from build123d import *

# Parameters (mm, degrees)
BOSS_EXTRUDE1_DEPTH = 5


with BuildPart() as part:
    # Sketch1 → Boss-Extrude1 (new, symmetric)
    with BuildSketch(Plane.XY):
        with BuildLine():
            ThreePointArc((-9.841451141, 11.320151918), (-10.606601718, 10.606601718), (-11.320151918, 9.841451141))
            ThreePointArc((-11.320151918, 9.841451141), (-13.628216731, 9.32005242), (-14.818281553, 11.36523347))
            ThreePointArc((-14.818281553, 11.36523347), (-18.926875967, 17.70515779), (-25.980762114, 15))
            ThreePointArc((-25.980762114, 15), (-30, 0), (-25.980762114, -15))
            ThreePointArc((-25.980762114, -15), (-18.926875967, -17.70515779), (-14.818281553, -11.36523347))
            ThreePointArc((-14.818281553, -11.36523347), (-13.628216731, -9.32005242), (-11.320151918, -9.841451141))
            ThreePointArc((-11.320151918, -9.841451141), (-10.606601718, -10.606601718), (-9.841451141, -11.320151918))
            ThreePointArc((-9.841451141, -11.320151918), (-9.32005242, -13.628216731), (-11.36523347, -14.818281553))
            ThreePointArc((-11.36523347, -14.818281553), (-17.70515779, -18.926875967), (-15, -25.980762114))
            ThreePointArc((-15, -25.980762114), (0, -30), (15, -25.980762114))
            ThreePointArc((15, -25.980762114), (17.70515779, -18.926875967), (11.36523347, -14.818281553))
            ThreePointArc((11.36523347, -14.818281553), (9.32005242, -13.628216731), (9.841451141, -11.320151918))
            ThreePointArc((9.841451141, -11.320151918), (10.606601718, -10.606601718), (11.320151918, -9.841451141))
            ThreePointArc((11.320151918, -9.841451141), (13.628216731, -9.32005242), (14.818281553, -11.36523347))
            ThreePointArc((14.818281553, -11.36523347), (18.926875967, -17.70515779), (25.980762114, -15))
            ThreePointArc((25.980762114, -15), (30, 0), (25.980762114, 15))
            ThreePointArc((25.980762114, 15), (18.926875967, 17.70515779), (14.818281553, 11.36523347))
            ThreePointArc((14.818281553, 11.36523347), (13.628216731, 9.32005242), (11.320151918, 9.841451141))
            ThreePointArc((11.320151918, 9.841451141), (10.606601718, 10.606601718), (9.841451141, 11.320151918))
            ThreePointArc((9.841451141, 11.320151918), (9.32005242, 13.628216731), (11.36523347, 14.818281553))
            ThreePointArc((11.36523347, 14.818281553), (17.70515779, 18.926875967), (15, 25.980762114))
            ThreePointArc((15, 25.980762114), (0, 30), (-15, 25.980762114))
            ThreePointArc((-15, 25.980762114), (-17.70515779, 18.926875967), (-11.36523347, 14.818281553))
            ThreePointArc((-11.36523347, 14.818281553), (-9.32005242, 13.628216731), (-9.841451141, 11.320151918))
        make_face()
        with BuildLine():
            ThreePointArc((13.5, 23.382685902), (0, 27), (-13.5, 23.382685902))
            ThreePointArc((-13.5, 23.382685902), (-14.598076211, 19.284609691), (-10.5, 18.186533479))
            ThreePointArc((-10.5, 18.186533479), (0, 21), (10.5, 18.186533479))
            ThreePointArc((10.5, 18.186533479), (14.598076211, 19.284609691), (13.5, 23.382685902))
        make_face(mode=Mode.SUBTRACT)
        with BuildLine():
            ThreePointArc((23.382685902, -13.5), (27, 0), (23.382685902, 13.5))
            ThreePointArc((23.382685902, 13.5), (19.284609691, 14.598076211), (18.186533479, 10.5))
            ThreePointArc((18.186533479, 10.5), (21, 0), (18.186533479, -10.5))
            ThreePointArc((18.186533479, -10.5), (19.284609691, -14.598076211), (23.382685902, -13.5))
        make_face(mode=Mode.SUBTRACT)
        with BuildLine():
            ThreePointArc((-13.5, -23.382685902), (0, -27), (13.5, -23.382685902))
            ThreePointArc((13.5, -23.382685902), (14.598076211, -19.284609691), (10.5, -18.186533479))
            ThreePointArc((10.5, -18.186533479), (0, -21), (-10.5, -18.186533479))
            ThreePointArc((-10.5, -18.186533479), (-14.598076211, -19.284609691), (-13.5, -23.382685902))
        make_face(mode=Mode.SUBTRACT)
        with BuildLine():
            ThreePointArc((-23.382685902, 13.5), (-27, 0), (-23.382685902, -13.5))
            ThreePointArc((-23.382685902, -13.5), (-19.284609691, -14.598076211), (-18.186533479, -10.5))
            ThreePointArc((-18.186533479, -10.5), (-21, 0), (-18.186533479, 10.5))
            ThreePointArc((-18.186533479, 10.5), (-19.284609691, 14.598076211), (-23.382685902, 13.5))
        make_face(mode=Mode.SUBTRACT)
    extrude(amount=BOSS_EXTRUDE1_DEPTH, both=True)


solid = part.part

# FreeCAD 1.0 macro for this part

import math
import FreeCAD as App
import Part
import Sketcher
Q = App.Units.Quantity

doc = App.newDocument("Part")
body = doc.addObject("PartDesign::Body", "Body")

sketch1 = doc.addObject("Sketcher::SketchObject", "Sketch")
body.addObject(sketch1)
sketch1.AttachmentSupport = (doc.XY_Plane, [""])
sketch1.MapMode = "FlatFace"
sketch1.addGeometry([
    Part.ArcOfCircle(Part.Circle(App.Vector(0, 0, 0), App.Vector(0, 0, 1), 15), math.radians(131), math.radians(139)),
    Part.ArcOfCircle(Part.Circle(App.Vector(-12.8, 11.2, 0), App.Vector(0, 0, 1), 2), math.radians(174), math.radians(319)),
    Part.ArcOfCircle(Part.Circle(App.Vector(-20.8, 12, 0), App.Vector(0, 0, 1), 6), math.radians(-6), math.radians(150)),
    Part.ArcOfCircle(Part.Circle(App.Vector(0, 0, 0), App.Vector(0, 0, 1), 30), math.radians(150), math.radians(210)),
    Part.ArcOfCircle(Part.Circle(App.Vector(-20.8, -12, 0), App.Vector(0, 0, 1), 6), math.radians(-150), math.radians(6)),
    Part.ArcOfCircle(Part.Circle(App.Vector(-12.8, -11.2, 0), App.Vector(0, 0, 1), 2), math.radians(41), math.radians(186)),
    Part.ArcOfCircle(Part.Circle(App.Vector(0, 0, 0), App.Vector(0, 0, 1), 15), math.radians(-139), math.radians(-131)),
    Part.ArcOfCircle(Part.Circle(App.Vector(-11.2, -12.8, 0), App.Vector(0, 0, 1), 2), math.radians(-96), math.radians(49)),
    Part.ArcOfCircle(Part.Circle(App.Vector(-12, -20.8, 0), App.Vector(0, 0, 1), 6), math.radians(84), math.radians(240)),
    Part.ArcOfCircle(Part.Circle(App.Vector(0, 0, 0), App.Vector(0, 0, 1), 30), math.radians(-120), math.radians(-60)),
    Part.ArcOfCircle(Part.Circle(App.Vector(12, -20.8, 0), App.Vector(0, 0, 1), 6), math.radians(-60), math.radians(96)),
    Part.ArcOfCircle(Part.Circle(App.Vector(11.2, -12.8, 0), App.Vector(0, 0, 1), 2), math.radians(131), math.radians(276)),
    Part.ArcOfCircle(Part.Circle(App.Vector(0, 0, 0), App.Vector(0, 0, 1), 15), math.radians(-49), math.radians(-41)),
    Part.ArcOfCircle(Part.Circle(App.Vector(12.8, -11.2, 0), App.Vector(0, 0, 1), 2), math.radians(-6), math.radians(139)),
    Part.ArcOfCircle(Part.Circle(App.Vector(20.8, -12, 0), App.Vector(0, 0, 1), 6), math.radians(174), math.radians(330)),
    Part.ArcOfCircle(Part.Circle(App.Vector(0, 0, 0), App.Vector(0, 0, 1), 30), math.radians(-30), math.radians(30)),
    Part.ArcOfCircle(Part.Circle(App.Vector(20.8, 12, 0), App.Vector(0, 0, 1), 6), math.radians(30), math.radians(186)),
    Part.ArcOfCircle(Part.Circle(App.Vector(12.8, 11.2, 0), App.Vector(0, 0, 1), 2), math.radians(-139), math.radians(6)),
    Part.ArcOfCircle(Part.Circle(App.Vector(0, 0, 0), App.Vector(0, 0, 1), 15), math.radians(41), math.radians(49)),
    Part.ArcOfCircle(Part.Circle(App.Vector(11.2, 12.8, 0), App.Vector(0, 0, 1), 2), math.radians(84), math.radians(229)),
    Part.ArcOfCircle(Part.Circle(App.Vector(12, 20.8, 0), App.Vector(0, 0, 1), 6), math.radians(-96), math.radians(60)),
    Part.ArcOfCircle(Part.Circle(App.Vector(0, 0, 0), App.Vector(0, 0, 1), 30), math.radians(60), math.radians(120)),
    Part.ArcOfCircle(Part.Circle(App.Vector(-12, 20.8, 0), App.Vector(0, 0, 1), 6), math.radians(120), math.radians(276)),
    Part.ArcOfCircle(Part.Circle(App.Vector(-11.2, 12.8, 0), App.Vector(0, 0, 1), 2), math.radians(-49), math.radians(96)),
    Part.ArcOfCircle(Part.Circle(App.Vector(0, 0, 0), App.Vector(0, 0, 1), 27), math.radians(-120), math.radians(-60)),
    Part.ArcOfCircle(Part.Circle(App.Vector(-12, -20.8, 0), App.Vector(0, 0, 1), 3), math.radians(60), math.radians(240)),
    Part.ArcOfCircle(Part.Circle(App.Vector(0, 0, 0), App.Vector(0, 0, 1), 21), math.radians(-120), math.radians(-60)),
    Part.ArcOfCircle(Part.Circle(App.Vector(12, -20.8, 0), App.Vector(0, 0, 1), 3), math.radians(-60), math.radians(120)),
    Part.ArcOfCircle(Part.Circle(App.Vector(0, 0, 0), App.Vector(0, 0, 1), 27), math.radians(150), math.radians(210)),
    Part.ArcOfCircle(Part.Circle(App.Vector(-20.8, 12, 0), App.Vector(0, 0, 1), 3), math.radians(-30), math.radians(150)),
    Part.ArcOfCircle(Part.Circle(App.Vector(0, 0, 0), App.Vector(0, 0, 1), 21), math.radians(150), math.radians(210)),
    Part.ArcOfCircle(Part.Circle(App.Vector(-20.8, -12, 0), App.Vector(0, 0, 1), 3), math.radians(-150), math.radians(30)),
    Part.ArcOfCircle(Part.Circle(App.Vector(0, 0, 0), App.Vector(0, 0, 1), 27), math.radians(-30), math.radians(30)),
    Part.ArcOfCircle(Part.Circle(App.Vector(20.8, -12, 0), App.Vector(0, 0, 1), 3), math.radians(150), math.radians(330)),
    Part.ArcOfCircle(Part.Circle(App.Vector(0, 0, 0), App.Vector(0, 0, 1), 21), math.radians(-30), math.radians(30)),
    Part.ArcOfCircle(Part.Circle(App.Vector(20.8, 12, 0), App.Vector(0, 0, 1), 3), math.radians(30), math.radians(210)),
    Part.ArcOfCircle(Part.Circle(App.Vector(0, 0, 0), App.Vector(0, 0, 1), 27), math.radians(60), math.radians(120)),
    Part.ArcOfCircle(Part.Circle(App.Vector(12, 20.8, 0), App.Vector(0, 0, 1), 3), math.radians(-120), math.radians(60)),
    Part.ArcOfCircle(Part.Circle(App.Vector(0, 0, 0), App.Vector(0, 0, 1), 21), math.radians(60), math.radians(120)),
    Part.ArcOfCircle(Part.Circle(App.Vector(-12, 20.8, 0), App.Vector(0, 0, 1), 3), math.radians(120), math.radians(300)),
], False)
sketch1.addConstraint([
    Sketcher.Constraint("Tangent", 0, 2, 1, 2),
    Sketcher.Constraint("Tangent", 1, 1, 2, 1),
    Sketcher.Constraint("Tangent", 2, 2, 3, 1),
    Sketcher.Constraint("Tangent", 3, 2, 4, 1),
    Sketcher.Constraint("Tangent", 4, 2, 5, 2),
    Sketcher.Constraint("Tangent", 5, 1, 6, 1),
    Sketcher.Constraint("Tangent", 6, 2, 7, 2),
    Sketcher.Constraint("Tangent", 7, 1, 8, 1),
    Sketcher.Constraint("Tangent", 8, 2, 9, 1),
    Sketcher.Constraint("Tangent", 9, 2, 10, 1),
    Sketcher.Constraint("Tangent", 10, 2, 11, 2),
    Sketcher.Constraint("Tangent", 11, 1, 12, 1),
    Sketcher.Constraint("Tangent", 12, 2, 13, 2),
    Sketcher.Constraint("Tangent", 13, 1, 14, 1),
    Sketcher.Constraint("Tangent", 14, 2, 15, 1),
    Sketcher.Constraint("Tangent", 15, 2, 16, 1),
    Sketcher.Constraint("Tangent", 16, 2, 17, 2),
    Sketcher.Constraint("Tangent", 17, 1, 18, 1),
    Sketcher.Constraint("Tangent", 18, 2, 19, 2),
    Sketcher.Constraint("Tangent", 19, 1, 20, 1),
    Sketcher.Constraint("Tangent", 20, 2, 21, 1),
    Sketcher.Constraint("Tangent", 21, 2, 22, 1),
    Sketcher.Constraint("Tangent", 22, 2, 23, 2),
    Sketcher.Constraint("Tangent", 23, 1, 0, 1),
    Sketcher.Constraint("Tangent", 24, 1, 25, 2),
    Sketcher.Constraint("Tangent", 25, 1, 26, 1),
    Sketcher.Constraint("Tangent", 26, 2, 27, 2),
    Sketcher.Constraint("Tangent", 27, 1, 24, 2),
    Sketcher.Constraint("Tangent", 28, 1, 29, 2),
    Sketcher.Constraint("Tangent", 29, 1, 30, 1),
    Sketcher.Constraint("Tangent", 30, 2, 31, 2),
    Sketcher.Constraint("Tangent", 31, 1, 28, 2),
    Sketcher.Constraint("Tangent", 32, 1, 33, 2),
    Sketcher.Constraint("Tangent", 33, 1, 34, 1),
    Sketcher.Constraint("Tangent", 34, 2, 35, 2),
    Sketcher.Constraint("Tangent", 35, 1, 32, 2),
    Sketcher.Constraint("Tangent", 36, 1, 37, 2),
    Sketcher.Constraint("Tangent", 37, 1, 38, 1),
    Sketcher.Constraint("Tangent", 38, 2, 39, 2),
    Sketcher.Constraint("Tangent", 39, 1, 36, 2),
    Sketcher.Constraint("Coincident", 0, 3, -1, 1),
    Sketcher.Constraint("Coincident", 3, 3, -1, 1),
    Sketcher.Constraint("Coincident", 6, 3, -1, 1),
    Sketcher.Constraint("Coincident", 9, 3, -1, 1),
    Sketcher.Constraint("Coincident", 12, 3, -1, 1),
    Sketcher.Constraint("Coincident", 15, 3, -1, 1),
    Sketcher.Constraint("Coincident", 18, 3, -1, 1),
    Sketcher.Constraint("Coincident", 21, 3, -1, 1),
    Sketcher.Constraint("Coincident", 24, 3, -1, 1),
    Sketcher.Constraint("Coincident", 26, 3, -1, 1),
    Sketcher.Constraint("Coincident", 28, 3, -1, 1),
    Sketcher.Constraint("Coincident", 30, 3, -1, 1),
    Sketcher.Constraint("Coincident", 32, 3, -1, 1),
    Sketcher.Constraint("Coincident", 34, 3, -1, 1),
    Sketcher.Constraint("Coincident", 36, 3, -1, 1),
    Sketcher.Constraint("Coincident", 38, 3, -1, 1),
    Sketcher.Constraint("Coincident", 25, 3, 8, 3),
    Sketcher.Constraint("Coincident", 27, 3, 10, 3),
    Sketcher.Constraint("Coincident", 29, 3, 2, 3),
    Sketcher.Constraint("Coincident", 31, 3, 4, 3),
    Sketcher.Constraint("Coincident", 33, 3, 14, 3),
    Sketcher.Constraint("Coincident", 35, 3, 16, 3),
    Sketcher.Constraint("Coincident", 37, 3, 20, 3),
    Sketcher.Constraint("Coincident", 39, 3, 22, 3),
    Sketcher.Constraint("Equal", 1, 5),
    Sketcher.Constraint("Equal", 0, 6),
    Sketcher.Constraint("Equal", 5, 7),
    Sketcher.Constraint("Equal", 4, 8),
    Sketcher.Constraint("Equal", 3, 9),
    Sketcher.Constraint("Equal", 7, 11),
    Sketcher.Constraint("Equal", 6, 12),
    Sketcher.Constraint("Equal", 11, 13),
    Sketcher.Constraint("Equal", 10, 14),
    Sketcher.Constraint("Equal", 9, 15),
    Sketcher.Constraint("Equal", 13, 17),
    Sketcher.Constraint("Equal", 12, 18),
    Sketcher.Constraint("Equal", 17, 19),
    Sketcher.Constraint("Equal", 16, 20),
    Sketcher.Constraint("Equal", 15, 21),
    Sketcher.Constraint("Equal", 19, 23),
    Sketcher.Constraint("Equal", 24, 28),
    Sketcher.Constraint("Equal", 28, 32),
    Sketcher.Constraint("Equal", 32, 36),
    Sketcher.Constraint("Horizontal", 8, 3, 10, 3),
    Sketcher.Constraint("Horizontal", 5, 3, 13, 3),
    Sketcher.Constraint("Horizontal", 2, 3, 16, 3),
    Sketcher.Constraint("Horizontal", 20, 3, 22, 3),
    Sketcher.Constraint("Vertical", 2, 3, 4, 3),
    Sketcher.Constraint("Vertical", 11, 3, 19, 3),
    Sketcher.Constraint("Radius", 0, Q("15 mm")),
    Sketcher.Constraint("Radius", 1, Q("2 mm")),
    Sketcher.Constraint("Radius", 2, Q("6 mm")),
    Sketcher.Constraint("Radius", 3, Q("30 mm")),
    Sketcher.Constraint("Radius", 24, Q("27 mm")),
    Sketcher.Constraint("DistanceY", -1, 1, 2, 3, Q("12 mm")),
    Sketcher.Constraint("DistanceX", 8, 3, -1, 1, Q("12 mm")),
])
pad1 = doc.addObject("PartDesign::Pad", "Pad")
body.addObject(pad1)
pad1.Profile = sketch1
pad1.Length = 10
pad1.Midplane = True

doc.recompute()
